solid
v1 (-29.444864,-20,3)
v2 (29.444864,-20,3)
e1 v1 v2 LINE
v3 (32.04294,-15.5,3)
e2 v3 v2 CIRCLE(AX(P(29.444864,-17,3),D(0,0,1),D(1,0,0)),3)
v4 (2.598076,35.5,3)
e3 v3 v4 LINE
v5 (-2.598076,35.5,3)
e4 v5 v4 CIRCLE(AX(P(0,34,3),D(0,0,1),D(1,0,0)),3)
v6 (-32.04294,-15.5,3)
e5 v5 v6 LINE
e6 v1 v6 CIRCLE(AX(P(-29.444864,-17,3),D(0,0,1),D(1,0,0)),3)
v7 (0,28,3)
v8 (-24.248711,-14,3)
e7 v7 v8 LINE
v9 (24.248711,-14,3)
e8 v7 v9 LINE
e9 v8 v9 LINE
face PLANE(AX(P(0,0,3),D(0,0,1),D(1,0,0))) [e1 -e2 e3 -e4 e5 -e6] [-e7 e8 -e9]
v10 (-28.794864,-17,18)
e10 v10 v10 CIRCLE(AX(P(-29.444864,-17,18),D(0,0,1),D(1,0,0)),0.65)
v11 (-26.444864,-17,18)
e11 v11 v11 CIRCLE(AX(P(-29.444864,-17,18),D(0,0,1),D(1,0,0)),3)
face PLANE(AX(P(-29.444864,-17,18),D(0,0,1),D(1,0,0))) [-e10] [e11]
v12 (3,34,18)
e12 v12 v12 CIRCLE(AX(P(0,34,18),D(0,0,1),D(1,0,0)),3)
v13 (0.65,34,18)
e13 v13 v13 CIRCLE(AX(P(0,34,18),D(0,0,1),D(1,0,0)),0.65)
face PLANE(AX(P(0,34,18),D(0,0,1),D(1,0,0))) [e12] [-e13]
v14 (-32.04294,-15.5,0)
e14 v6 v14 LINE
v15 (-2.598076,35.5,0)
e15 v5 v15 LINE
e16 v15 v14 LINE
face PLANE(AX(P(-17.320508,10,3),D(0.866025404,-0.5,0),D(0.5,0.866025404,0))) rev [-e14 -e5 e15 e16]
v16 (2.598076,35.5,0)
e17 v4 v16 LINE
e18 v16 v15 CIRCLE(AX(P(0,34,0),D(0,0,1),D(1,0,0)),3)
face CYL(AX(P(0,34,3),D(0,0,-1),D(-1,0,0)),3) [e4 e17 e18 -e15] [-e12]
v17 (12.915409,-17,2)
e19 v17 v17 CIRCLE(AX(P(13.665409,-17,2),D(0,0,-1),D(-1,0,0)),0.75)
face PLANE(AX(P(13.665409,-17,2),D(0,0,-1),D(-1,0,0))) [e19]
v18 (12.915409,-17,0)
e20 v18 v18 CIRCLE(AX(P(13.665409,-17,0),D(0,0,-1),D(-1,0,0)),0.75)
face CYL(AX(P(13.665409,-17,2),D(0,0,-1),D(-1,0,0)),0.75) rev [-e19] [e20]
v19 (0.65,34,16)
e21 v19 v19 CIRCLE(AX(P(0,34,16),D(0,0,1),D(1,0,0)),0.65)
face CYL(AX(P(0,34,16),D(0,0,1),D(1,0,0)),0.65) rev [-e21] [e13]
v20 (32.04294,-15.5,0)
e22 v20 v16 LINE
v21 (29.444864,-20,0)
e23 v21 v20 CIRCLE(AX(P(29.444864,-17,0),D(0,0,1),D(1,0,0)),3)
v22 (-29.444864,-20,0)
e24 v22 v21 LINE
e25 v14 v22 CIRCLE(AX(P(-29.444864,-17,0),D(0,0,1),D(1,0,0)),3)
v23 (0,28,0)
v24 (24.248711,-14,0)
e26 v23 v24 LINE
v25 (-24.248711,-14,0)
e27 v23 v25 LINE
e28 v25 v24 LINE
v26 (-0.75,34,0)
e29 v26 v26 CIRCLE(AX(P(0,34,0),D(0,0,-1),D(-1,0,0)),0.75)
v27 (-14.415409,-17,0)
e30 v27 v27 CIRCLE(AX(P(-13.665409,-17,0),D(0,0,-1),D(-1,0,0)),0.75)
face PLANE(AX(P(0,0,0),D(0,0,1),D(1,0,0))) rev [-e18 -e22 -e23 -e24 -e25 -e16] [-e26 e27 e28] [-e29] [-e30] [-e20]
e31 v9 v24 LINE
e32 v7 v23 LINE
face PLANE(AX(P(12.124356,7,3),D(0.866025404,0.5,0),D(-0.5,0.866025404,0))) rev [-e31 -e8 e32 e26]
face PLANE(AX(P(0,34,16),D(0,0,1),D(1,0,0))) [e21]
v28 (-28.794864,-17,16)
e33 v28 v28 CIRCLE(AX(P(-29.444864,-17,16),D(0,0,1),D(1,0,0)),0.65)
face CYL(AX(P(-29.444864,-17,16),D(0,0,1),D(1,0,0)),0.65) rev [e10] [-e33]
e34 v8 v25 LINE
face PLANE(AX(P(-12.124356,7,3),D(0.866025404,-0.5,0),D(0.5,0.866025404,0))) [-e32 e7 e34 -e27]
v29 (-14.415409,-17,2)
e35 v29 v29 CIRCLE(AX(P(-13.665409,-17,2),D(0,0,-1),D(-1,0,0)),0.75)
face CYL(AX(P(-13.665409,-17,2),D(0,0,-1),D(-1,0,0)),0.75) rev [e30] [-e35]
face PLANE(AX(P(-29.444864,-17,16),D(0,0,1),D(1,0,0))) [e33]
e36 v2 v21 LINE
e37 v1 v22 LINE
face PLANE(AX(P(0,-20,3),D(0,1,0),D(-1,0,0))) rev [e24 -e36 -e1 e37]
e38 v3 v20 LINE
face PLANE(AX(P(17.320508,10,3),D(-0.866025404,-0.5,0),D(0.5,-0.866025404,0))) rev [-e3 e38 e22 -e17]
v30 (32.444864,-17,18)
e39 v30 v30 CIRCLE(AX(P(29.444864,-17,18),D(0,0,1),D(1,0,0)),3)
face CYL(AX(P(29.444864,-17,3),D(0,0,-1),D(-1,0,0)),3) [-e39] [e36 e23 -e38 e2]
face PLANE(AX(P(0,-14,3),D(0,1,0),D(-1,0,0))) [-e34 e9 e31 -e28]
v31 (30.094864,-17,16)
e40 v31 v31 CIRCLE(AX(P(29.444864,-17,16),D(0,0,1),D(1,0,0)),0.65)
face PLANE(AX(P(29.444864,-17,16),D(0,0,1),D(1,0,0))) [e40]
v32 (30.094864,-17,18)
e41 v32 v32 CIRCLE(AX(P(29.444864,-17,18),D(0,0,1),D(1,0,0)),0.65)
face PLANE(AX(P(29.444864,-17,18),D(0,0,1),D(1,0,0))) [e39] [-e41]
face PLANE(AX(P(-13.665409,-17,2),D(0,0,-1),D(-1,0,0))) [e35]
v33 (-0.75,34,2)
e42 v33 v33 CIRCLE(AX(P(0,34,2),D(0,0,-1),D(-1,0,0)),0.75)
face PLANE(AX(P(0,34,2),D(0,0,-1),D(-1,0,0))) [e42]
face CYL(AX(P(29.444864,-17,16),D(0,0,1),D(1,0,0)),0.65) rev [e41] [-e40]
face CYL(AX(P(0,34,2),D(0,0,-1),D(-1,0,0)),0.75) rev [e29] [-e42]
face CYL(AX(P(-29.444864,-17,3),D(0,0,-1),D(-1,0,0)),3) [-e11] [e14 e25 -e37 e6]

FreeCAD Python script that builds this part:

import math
import FreeCAD as App
import Part
import Sketcher
Q = App.Units.Quantity


def add_polygon(sketch, points):
    """Adds a closed chain of lines whose ends are joined by coincident constraints."""
    first, n = sketch.GeometryCount, len(points)
    for a, b in zip(points, points[1:] + points[:1]):
        sketch.addGeometry(Part.LineSegment(App.Vector(*a, 0), App.Vector(*b, 0)), False)
    for i in range(n):
        sketch.addConstraint(Sketcher.Constraint("Coincident", first + i, 2, first + (i + 1) % n, 1))

doc = App.newDocument("Part")
body = doc.addObject("PartDesign::Body", "Body")

# Sketch on XY plane
sketch1 = doc.addObject("Sketcher::SketchObject", "Sketch")
body.addObject(sketch1)
sketch1.AttachmentSupport = (doc.XY_Plane, [""])
sketch1.MapMode = "FlatFace"
sketch1.addGeometry(Part.LineSegment(App.Vector(-29.444864, -20, 0), App.Vector(29.444864, -20, 0)), False)  # 0
sketch1.addGeometry(Part.ArcOfCircle(Part.Circle(App.Vector(29.444864, -17, 0), App.Vector(0, 0, 1), 3), math.radians(-90), math.radians(30)), False)  # 1
sketch1.addGeometry(Part.LineSegment(App.Vector(32.04294, -15.5, 0), App.Vector(2.598076, 35.5, 0)), False)  # 2
sketch1.addGeometry(Part.ArcOfCircle(Part.Circle(App.Vector(0, 34, 0), App.Vector(0, 0, 1), 3), math.radians(30), math.radians(150)), False)  # 3
sketch1.addGeometry(Part.LineSegment(App.Vector(-2.598076, 35.5, 0), App.Vector(-32.04294, -15.5, 0)), False)  # 4
sketch1.addGeometry(Part.ArcOfCircle(Part.Circle(App.Vector(-29.444864, -17, 0), App.Vector(0, 0, 1), 3), math.radians(150), math.radians(270)), False)  # 5
add_polygon(sketch1, [(0, 28), (24.248711, -14), (-24.248711, -14)])  # lines 6-8
sketch1.addConstraint([
    Sketcher.Constraint("Tangent", 0, 2, 1, 1),
    Sketcher.Constraint("Tangent", 1, 2, 2, 1),
    Sketcher.Constraint("Tangent", 2, 2, 3, 1),
    Sketcher.Constraint("Tangent", 3, 2, 4, 1),
    Sketcher.Constraint("Tangent", 4, 2, 5, 1),
    Sketcher.Constraint("Tangent", 5, 2, 0, 1),
    Sketcher.Constraint("Horizontal", 0),
    Sketcher.Constraint("Horizontal", 7),
    Sketcher.Constraint("Equal", 1, 3),
    Sketcher.Constraint("Equal", 3, 5),
    Sketcher.Constraint("Symmetric", 2, 2, 3, 2, -2),
    Sketcher.Constraint("PointOnObject", 8, 2, -2),
    Sketcher.Constraint("Parallel", 2, 6),
    Sketcher.Constraint("Parallel", 4, 8),
    Sketcher.Constraint("Radius", 1, 3.0),
    Sketcher.Constraint("Angle", 2, Q("120 deg")),
    Sketcher.Constraint("DistanceY", 1, 3, -1, 1, 17.0),
    Sketcher.Constraint("DistanceY", -1, 1, 3, 3, 34.0),
    Sketcher.Constraint("DistanceY", 6, 2, -1, 1, 14.0),
    Sketcher.Constraint("DistanceY", -1, 1, 8, 2, 28.0),
])
pad1 = doc.addObject("PartDesign::Pad", "Pad")
body.addObject(pad1)
pad1.Profile = sketch1
pad1.Length = 3

# Sketch on XY plane
sketch2 = doc.addObject("Sketcher::SketchObject", "Sketch001")
body.addObject(sketch2)
sketch2.AttachmentSupport = (doc.XY_Plane, [""])
sketch2.MapMode = "FlatFace"
sketch2.AttachmentOffset = App.Placement(App.Vector(0, 0, 3), App.Rotation())
sketch2.addGeometry([
    Part.Circle(App.Vector(-29.444864, -17, 0), App.Vector(0, 0, 1), 3),
    Part.Circle(App.Vector(29.444864, -17, 0), App.Vector(0, 0, 1), 3),
    Part.Circle(App.Vector(0, 34, 0), App.Vector(0, 0, 1), 3),
], False)
sketch2.addConstraint([
    Sketcher.Constraint("Equal", 0, 1),
    Sketcher.Constraint("Equal", 1, 2),
    Sketcher.Constraint("Symmetric", 0, 3, 1, 3, -2),
    Sketcher.Constraint("PointOnObject", 2, 3, -2),
    Sketcher.Constraint("Diameter", 0, 6.0),
    Sketcher.Constraint("DistanceY", 0, 3, -1, 1, 17.0),
    Sketcher.Constraint("DistanceY", -1, 1, 2, 3, 34.0),
    Sketcher.Constraint("DistanceX", 0, 3, -1, 1, 29.444864),
])
pad2 = doc.addObject("PartDesign::Pad", "Pad001")
body.addObject(pad2)
pad2.Profile = sketch2
pad2.Length = 15

# Sketch on XY plane
sketch3 = doc.addObject("Sketcher::SketchObject", "Sketch002")
body.addObject(sketch3)
sketch3.AttachmentSupport = (doc.XY_Plane, [""])
sketch3.MapMode = "FlatFace"
sketch3.AttachmentOffset = App.Placement(App.Vector(0, 0, 18), App.Rotation())
sketch3.addGeometry([
    Part.Circle(App.Vector(0, 34, 0), App.Vector(0, 0, 1), 0.65),
    Part.Circle(App.Vector(-29.444864, -17, 0), App.Vector(0, 0, 1), 0.65),
    Part.Circle(App.Vector(29.444864, -17, 0), App.Vector(0, 0, 1), 0.65),
], False)
sketch3.addConstraint([
    Sketcher.Constraint("Equal", 0, 1),
    Sketcher.Constraint("Equal", 1, 2),
    Sketcher.Constraint("Symmetric", 1, 3, 2, 3, -2),
    Sketcher.Constraint("PointOnObject", 0, 3, -2),
    Sketcher.Constraint("Diameter", 0, 1.3),
    Sketcher.Constraint("DistanceY", -1, 1, 0, 3, 34.0),
    Sketcher.Constraint("DistanceY", 1, 3, -1, 1, 17.0),
    Sketcher.Constraint("DistanceX", 1, 3, -1, 1, 29.444864),
])
pocket1 = doc.addObject("PartDesign::Pocket", "Pocket")
body.addObject(pocket1)
pocket1.Profile = sketch3
pocket1.Length = 2

# Sketch on XY plane
sketch4 = doc.addObject("Sketcher::SketchObject", "Sketch003")
body.addObject(sketch4)
sketch4.AttachmentSupport = (doc.XY_Plane, [""])
sketch4.MapMode = "FlatFace"
sketch4.addGeometry([
    Part.Circle(App.Vector(13.665409, -17, 0), App.Vector(0, 0, 1), 0.75),
    Part.Circle(App.Vector(-13.665409, -17, 0), App.Vector(0, 0, 1), 0.75),
    Part.Circle(App.Vector(0, 34, 0), App.Vector(0, 0, 1), 0.75),
], False)
sketch4.addConstraint([
    Sketcher.Constraint("Equal", 0, 1),
    Sketcher.Constraint("Equal", 1, 2),
    Sketcher.Constraint("Symmetric", 0, 3, 1, 3, -2),
    Sketcher.Constraint("PointOnObject", 2, 3, -2),
    Sketcher.Constraint("Diameter", 0, 1.5),
    Sketcher.Constraint("DistanceY", 0, 3, -1, 1, 17.0),
    Sketcher.Constraint("DistanceY", -1, 1, 2, 3, 34.0),
    Sketcher.Constraint("DistanceX", -1, 1, 0, 3, 13.665409),
])
pocket2 = doc.addObject("PartDesign::Pocket", "Pocket001")
body.addObject(pocket2)
pocket2.Profile = sketch4
pocket2.Length = 2
pocket2.Reversed = True

doc.recompute()
